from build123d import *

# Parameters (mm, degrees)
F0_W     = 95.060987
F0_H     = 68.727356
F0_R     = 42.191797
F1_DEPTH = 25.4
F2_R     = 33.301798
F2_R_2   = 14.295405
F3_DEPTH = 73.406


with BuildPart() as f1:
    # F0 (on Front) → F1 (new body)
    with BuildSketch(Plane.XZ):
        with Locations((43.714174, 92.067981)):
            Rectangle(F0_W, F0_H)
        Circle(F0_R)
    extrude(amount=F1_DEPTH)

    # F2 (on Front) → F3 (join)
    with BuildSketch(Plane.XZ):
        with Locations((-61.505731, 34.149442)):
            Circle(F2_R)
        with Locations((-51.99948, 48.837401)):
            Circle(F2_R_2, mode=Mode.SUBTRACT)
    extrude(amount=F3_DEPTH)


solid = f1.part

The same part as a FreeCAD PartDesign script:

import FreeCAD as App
import Part
import Sketcher
from FreeCAD import Vector
Q = App.Units.Quantity

doc = App.newDocument("Part")
body = doc.addObject("PartDesign::Body", "Body")
body.AllowCompound = True

# Sketch on XZ plane
sketch1 = doc.addObject("Sketcher::SketchObject", "Sketch")
body.addObject(sketch1)
sketch1.AttachmentSupport = (doc.XZ_Plane, [""])
sketch1.MapMode = "FlatFace"
sketch1.addGeometry(Part.LineSegment(Vector(-4, 126, 0), Vector(-4, 58, 0)), False)
sketch1.addGeometry(Part.LineSegment(Vector(-4, 58, 0), Vector(91, 58, 0)), False)
sketch1.addGeometry(Part.LineSegment(Vector(91, 58, 0), Vector(91, 126, 0)), False)
sketch1.addGeometry(Part.LineSegment(Vector(91, 126, 0), Vector(-4, 126, 0)), False)
sketch1.addGeometry(Part.Circle(Vector(0, 0, 0), Vector(0, 0, 1), 42), False)
sketch1.addConstraint(Sketcher.Constraint("Coincident", 0, 2, 1, 1))
sketch1.addConstraint(Sketcher.Constraint("Coincident", 1, 2, 2, 1))
sketch1.addConstraint(Sketcher.Constraint("Coincident", 2, 2, 3, 1))
sketch1.addConstraint(Sketcher.Constraint("Coincident", 3, 2, 0, 1))
sketch1.addConstraint(Sketcher.Constraint("Vertical", 0))
sketch1.addConstraint(Sketcher.Constraint("Horizontal", 1))
sketch1.addConstraint(Sketcher.Constraint("Vertical", 2))
sketch1.addConstraint(Sketcher.Constraint("Horizontal", 3))
sketch1.addConstraint(Sketcher.Constraint("Coincident", 4, 3, -1, 1))
sketch1.addConstraint(Sketcher.Constraint("Diameter", 4, 84.383594))
sketch1.addConstraint(Sketcher.Constraint("DistanceX", 1, 1, 1, 2, 95.060987))
sketch1.addConstraint(Sketcher.Constraint("DistanceY", 0, 2, 0, 1, 68.727356))
sketch1.addConstraint(Sketcher.Constraint("DistanceX", 0, 2, -1, 1, 3.81632))
sketch1.addConstraint(Sketcher.Constraint("DistanceY", -1, 1, 2, 2, 126.431659))
pad1 = doc.addObject("PartDesign::Pad", "Pad")
body.addObject(pad1)
pad1.Profile = sketch1
pad1.Length = Q("1 in")

# Sketch on XZ plane
sketch2 = doc.addObject("Sketcher::SketchObject", "Sketch001")
body.addObject(sketch2)
sketch2.AttachmentSupport = (doc.XZ_Plane, [""])
sketch2.MapMode = "FlatFace"
sketch2.addGeometry(Part.Circle(Vector(-62, 34, 0), Vector(0, 0, 1), 33), False)
sketch2.addGeometry(Part.Circle(Vector(-52, 49, 0), Vector(0, 0, 1), 14), False)
sketch2.addConstraint(Sketcher.Constraint("Diameter", 1, 28.59081))
sketch2.addConstraint(Sketcher.Constraint("Diameter", 0, 66.603596))
sketch2.addConstraint(Sketcher.Constraint("DistanceY", -1, 1, 1, 3, 48.837401))
sketch2.addConstraint(Sketcher.Constraint("DistanceX", 0, 3, -1, 1, 61.505731))
sketch2.addConstraint(Sketcher.Constraint("DistanceX", 1, 3, -1, 1, 51.99948))
sketch2.addConstraint(Sketcher.Constraint("DistanceY", 0, 3, 1, 3, 14.687959))
pad2 = doc.addObject("PartDesign::Pad", "Pad001")
body.addObject(pad2)
pad2.Profile = sketch2
pad2.Length = Q("2.89 in")

doc.recompute()
